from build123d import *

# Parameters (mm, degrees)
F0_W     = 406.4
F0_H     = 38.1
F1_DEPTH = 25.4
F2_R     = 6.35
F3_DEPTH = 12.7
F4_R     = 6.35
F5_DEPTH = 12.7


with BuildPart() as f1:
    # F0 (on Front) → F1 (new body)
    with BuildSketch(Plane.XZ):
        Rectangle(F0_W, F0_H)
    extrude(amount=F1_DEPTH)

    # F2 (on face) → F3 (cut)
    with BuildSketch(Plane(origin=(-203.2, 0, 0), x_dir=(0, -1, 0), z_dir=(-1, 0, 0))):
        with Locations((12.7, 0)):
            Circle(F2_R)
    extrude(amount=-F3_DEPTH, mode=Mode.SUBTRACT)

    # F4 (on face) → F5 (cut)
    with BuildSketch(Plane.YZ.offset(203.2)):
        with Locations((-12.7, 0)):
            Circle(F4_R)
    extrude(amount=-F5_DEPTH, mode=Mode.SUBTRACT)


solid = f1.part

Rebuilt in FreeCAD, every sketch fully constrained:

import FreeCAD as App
import Part
import Sketcher
Q = App.Units.Quantity


def add_polygon(sketch, points):
    """Adds a closed chain of lines whose ends are joined by coincident constraints."""
    first, n = sketch.GeometryCount, len(points)
    for a, b in zip(points, points[1:] + points[:1]):
        sketch.addGeometry(Part.LineSegment(App.Vector(*a, 0), App.Vector(*b, 0)), False)
    for i in range(n):
        sketch.addConstraint(Sketcher.Constraint("Coincident", first + i, 2, first + (i + 1) % n, 1))

doc = App.newDocument("Part")
body = doc.addObject("PartDesign::Body", "Body")

sketch1 = doc.addObject("Sketcher::SketchObject", "Sketch")
body.addObject(sketch1)
sketch1.AttachmentSupport = (doc.XZ_Plane, [""])
sketch1.MapMode = "FlatFace"
add_polygon(sketch1, [(-203, 19), (-203, -19), (203, -19), (203, 19)])
sketch1.addConstraint([
    Sketcher.Constraint("Vertical", 0),
    Sketcher.Constraint("Horizontal", 1),
    Sketcher.Constraint("Vertical", 2),
    Sketcher.Constraint("Horizontal", 3),
    Sketcher.Constraint("Symmetric", 0, 2, 2, 2, -1, 1),
    Sketcher.Constraint("DistanceX", 1, 1, 1, 2, Q("16 in")),
    Sketcher.Constraint("DistanceY", 0, 2, 0, 1, Q("1.5 in")),
])
pad1 = doc.addObject("PartDesign::Pad", "Pad")
body.addObject(pad1)
pad1.Profile = sketch1
pad1.Length = Q("1 in")

sketch2 = doc.addObject("Sketcher::SketchObject", "Sketch001")
body.addObject(sketch2)
sketch2.AttachmentSupport = (doc.YZ_Plane, [""])
sketch2.MapMode = "FlatFace"
sketch2.AttachmentOffset = App.Placement(App.Vector(0, 0, -8 * 25.4), App.Rotation())
sketch2.addGeometry(Part.Circle(App.Vector(-13, 0, 0), App.Vector(0, 0, 1), 6), False)
sketch2.addConstraint([
    Sketcher.Constraint("PointOnObject", 0, 3, -1),
    Sketcher.Constraint("Diameter", 0, Q("0.5 in")),
    Sketcher.Constraint("DistanceX", 0, 3, -1, 1, Q("0.5 in")),
])
pocket1 = doc.addObject("PartDesign::Pocket", "Pocket")
body.addObject(pocket1)
pocket1.Profile = sketch2
pocket1.Length = Q("0.5 in")
pocket1.Reversed = True

sketch3 = doc.addObject("Sketcher::SketchObject", "Sketch002")
body.addObject(sketch3)
sketch3.AttachmentSupport = (doc.YZ_Plane, [""])
sketch3.MapMode = "FlatFace"
sketch3.AttachmentOffset = App.Placement(App.Vector(0, 0, 8 * 25.4), App.Rotation())
sketch3.addGeometry(Part.Circle(App.Vector(-13, 0, 0), App.Vector(0, 0, 1), 6), False)
sketch3.addConstraint([
    Sketcher.Constraint("PointOnObject", 0, 3, -1),
    Sketcher.Constraint("Diameter", 0, Q("0.5 in")),
    Sketcher.Constraint("DistanceX", 0, 3, -1, 1, Q("0.5 in")),
])
pocket2 = doc.addObject("PartDesign::Pocket", "Pocket001")
body.addObject(pocket2)
pocket2.Profile = sketch3
pocket2.Length = Q("0.5 in")

doc.recompute()
